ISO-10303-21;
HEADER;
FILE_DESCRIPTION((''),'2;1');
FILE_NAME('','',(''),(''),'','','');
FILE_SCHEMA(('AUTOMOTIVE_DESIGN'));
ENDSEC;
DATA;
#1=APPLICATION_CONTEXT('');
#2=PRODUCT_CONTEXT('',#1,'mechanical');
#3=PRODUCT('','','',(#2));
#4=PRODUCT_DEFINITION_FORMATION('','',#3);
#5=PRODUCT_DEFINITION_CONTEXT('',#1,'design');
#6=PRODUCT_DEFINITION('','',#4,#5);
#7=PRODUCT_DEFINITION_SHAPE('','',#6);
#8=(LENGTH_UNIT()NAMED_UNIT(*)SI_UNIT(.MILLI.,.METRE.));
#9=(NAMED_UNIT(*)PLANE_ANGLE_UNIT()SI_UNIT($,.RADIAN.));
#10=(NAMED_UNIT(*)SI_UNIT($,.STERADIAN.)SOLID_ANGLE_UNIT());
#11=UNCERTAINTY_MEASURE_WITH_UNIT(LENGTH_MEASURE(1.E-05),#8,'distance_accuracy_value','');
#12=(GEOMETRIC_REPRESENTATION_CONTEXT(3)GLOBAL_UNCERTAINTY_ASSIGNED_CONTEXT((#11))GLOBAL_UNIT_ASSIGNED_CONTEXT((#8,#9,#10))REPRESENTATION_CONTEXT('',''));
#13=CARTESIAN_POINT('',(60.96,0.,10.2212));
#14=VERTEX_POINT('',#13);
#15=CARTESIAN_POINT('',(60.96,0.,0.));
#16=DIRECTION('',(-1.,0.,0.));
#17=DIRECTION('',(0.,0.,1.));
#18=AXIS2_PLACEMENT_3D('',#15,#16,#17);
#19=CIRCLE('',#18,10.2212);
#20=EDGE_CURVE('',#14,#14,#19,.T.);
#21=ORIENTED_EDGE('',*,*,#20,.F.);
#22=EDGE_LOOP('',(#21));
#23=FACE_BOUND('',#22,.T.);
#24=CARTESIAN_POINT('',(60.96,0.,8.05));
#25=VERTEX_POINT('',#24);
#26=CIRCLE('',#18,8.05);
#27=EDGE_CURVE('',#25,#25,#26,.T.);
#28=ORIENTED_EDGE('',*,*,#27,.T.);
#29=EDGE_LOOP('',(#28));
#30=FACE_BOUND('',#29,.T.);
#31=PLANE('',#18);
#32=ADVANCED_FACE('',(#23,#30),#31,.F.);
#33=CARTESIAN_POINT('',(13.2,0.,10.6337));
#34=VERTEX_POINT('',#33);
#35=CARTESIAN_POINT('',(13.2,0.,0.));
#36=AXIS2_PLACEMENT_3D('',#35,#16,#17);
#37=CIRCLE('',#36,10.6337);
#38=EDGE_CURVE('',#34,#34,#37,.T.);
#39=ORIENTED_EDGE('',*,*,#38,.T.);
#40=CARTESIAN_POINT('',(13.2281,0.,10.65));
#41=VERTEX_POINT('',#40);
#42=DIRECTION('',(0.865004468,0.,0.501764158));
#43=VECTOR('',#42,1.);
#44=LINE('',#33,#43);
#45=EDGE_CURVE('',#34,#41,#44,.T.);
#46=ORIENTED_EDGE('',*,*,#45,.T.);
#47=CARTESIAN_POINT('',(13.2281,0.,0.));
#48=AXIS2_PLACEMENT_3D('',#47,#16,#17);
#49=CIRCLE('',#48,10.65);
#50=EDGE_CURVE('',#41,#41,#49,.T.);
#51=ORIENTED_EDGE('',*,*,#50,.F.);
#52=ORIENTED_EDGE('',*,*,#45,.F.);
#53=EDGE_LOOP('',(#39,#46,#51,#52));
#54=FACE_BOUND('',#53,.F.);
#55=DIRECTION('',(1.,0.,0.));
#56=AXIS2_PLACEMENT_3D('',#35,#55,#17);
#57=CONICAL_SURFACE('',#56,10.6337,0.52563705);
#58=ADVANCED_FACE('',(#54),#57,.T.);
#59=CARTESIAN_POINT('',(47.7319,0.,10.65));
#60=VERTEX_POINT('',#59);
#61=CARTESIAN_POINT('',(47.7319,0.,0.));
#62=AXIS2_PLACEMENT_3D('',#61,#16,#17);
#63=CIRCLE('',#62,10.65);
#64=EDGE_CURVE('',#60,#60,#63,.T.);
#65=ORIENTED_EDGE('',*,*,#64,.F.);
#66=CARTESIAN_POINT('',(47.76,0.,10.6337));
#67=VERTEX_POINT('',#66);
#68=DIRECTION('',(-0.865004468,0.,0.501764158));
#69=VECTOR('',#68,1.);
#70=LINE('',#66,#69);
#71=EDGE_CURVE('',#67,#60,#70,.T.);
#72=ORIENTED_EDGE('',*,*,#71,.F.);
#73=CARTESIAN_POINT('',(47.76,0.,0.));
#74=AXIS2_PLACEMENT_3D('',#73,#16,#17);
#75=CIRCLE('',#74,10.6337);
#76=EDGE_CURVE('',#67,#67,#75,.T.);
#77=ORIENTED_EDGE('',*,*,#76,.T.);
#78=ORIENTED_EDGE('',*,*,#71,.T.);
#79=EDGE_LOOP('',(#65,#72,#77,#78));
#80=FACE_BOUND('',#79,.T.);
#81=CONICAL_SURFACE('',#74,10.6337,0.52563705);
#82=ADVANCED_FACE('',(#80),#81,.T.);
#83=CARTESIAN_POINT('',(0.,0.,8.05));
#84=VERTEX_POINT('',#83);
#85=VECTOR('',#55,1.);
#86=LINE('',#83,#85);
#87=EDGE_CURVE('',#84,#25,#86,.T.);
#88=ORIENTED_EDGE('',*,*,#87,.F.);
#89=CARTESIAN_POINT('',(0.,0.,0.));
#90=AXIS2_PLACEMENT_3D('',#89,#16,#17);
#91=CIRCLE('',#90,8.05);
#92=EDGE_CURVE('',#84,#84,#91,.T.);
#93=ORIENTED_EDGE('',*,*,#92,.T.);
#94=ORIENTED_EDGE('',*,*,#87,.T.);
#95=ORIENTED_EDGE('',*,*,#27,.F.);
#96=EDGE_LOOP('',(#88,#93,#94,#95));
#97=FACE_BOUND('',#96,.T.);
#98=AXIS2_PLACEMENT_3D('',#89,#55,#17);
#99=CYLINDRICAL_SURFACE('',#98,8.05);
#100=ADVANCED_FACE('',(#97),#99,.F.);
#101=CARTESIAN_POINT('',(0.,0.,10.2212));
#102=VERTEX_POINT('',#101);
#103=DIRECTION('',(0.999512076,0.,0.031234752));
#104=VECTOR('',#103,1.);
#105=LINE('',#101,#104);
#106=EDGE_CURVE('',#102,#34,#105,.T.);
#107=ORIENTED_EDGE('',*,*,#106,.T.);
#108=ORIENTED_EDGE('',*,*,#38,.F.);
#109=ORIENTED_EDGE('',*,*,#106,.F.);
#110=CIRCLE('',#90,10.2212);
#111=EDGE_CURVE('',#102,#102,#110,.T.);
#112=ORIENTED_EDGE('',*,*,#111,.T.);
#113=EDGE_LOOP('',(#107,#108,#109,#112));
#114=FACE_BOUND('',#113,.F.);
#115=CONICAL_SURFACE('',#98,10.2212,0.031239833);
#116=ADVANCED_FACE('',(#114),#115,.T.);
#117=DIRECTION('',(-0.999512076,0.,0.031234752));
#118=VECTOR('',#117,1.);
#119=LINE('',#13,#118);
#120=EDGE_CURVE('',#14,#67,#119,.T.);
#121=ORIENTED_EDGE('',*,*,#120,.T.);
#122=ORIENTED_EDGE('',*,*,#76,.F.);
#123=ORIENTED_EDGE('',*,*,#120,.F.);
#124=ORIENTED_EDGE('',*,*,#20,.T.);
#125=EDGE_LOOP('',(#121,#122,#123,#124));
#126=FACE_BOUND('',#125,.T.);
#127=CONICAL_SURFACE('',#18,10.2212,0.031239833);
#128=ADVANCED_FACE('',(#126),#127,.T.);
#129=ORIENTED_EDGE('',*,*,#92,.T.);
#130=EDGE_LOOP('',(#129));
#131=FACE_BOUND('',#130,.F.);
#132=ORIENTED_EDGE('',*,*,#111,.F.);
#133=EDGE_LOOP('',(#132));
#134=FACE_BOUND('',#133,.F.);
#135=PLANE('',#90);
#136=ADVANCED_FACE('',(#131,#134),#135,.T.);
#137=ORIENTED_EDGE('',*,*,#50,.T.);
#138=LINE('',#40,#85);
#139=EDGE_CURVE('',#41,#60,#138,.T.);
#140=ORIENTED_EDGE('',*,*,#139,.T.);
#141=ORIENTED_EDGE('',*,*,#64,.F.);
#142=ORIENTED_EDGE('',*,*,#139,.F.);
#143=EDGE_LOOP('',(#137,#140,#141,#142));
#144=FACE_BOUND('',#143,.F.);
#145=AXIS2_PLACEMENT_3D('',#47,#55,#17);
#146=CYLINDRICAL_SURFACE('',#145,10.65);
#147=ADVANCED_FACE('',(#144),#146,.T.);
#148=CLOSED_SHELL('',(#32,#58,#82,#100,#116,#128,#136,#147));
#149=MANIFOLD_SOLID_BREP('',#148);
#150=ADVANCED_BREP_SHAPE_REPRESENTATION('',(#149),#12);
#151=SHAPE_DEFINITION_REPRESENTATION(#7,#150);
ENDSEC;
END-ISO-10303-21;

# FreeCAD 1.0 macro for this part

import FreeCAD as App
import Part
import Sketcher
from FreeCAD import Vector
Q = App.Units.Quantity

doc = App.newDocument("Part")
params = doc.addObject("Spreadsheet::Sheet", "Params")
for row, (alias, value) in enumerate([
    ("sketch1_width", "2.4 in"),
    ("revolution_angle", "360 deg"),
], start=1):
    params.set(f"A{row}", alias)
    params.set(f"B{row}", "=" + value)
    params.setAlias(f"B{row}", alias)

body = doc.addObject("PartDesign::Body", "Body")

sketch1 = body.newObject("Sketcher::SketchObject", "Sketch")
sketch1.AttachmentSupport = (doc.getObject("XZ_Plane"), [""])
sketch1.MapMode = "FlatFace"
sketch1.addGeometry(Part.LineSegment(Vector(60.96, 8.05, 0), Vector(0, 8.05, 0)), False)
sketch1.addGeometry(Part.LineSegment(Vector(0, 8.05, 0), Vector(0, 10.2212, 0)), False)
sketch1.addGeometry(Part.LineSegment(Vector(0, 10.2212, 0), Vector(13.2, 10.6337, 0)), False)
sketch1.addGeometry(Part.LineSegment(Vector(13.2, 10.6337, 0), Vector(13.2281, 10.65, 0)), False)
sketch1.addGeometry(Part.LineSegment(Vector(13.2281, 10.65, 0), Vector(47.7319, 10.65, 0)), False)
sketch1.addGeometry(Part.LineSegment(Vector(47.7319, 10.65, 0), Vector(47.76, 10.6337, 0)), False)
sketch1.addGeometry(Part.LineSegment(Vector(47.76, 10.6337, 0), Vector(60.96, 10.2212, 0)), False)
sketch1.addGeometry(Part.LineSegment(Vector(60.96, 10.2212, 0), Vector(60.96, 8.05, 0)), False)
sketch1.addConstraint(Sketcher.Constraint("Coincident", 0, 2, 1, 1))
sketch1.addConstraint(Sketcher.Constraint("Coincident", 1, 2, 2, 1))
sketch1.addConstraint(Sketcher.Constraint("Coincident", 2, 2, 3, 1))
sketch1.addConstraint(Sketcher.Constraint("Coincident", 3, 2, 4, 1))
sketch1.addConstraint(Sketcher.Constraint("Coincident", 4, 2, 5, 1))
sketch1.addConstraint(Sketcher.Constraint("Coincident", 5, 2, 6, 1))
sketch1.addConstraint(Sketcher.Constraint("Coincident", 6, 2, 7, 1))
sketch1.addConstraint(Sketcher.Constraint("Coincident", 7, 2, 0, 1))
sketch1.addConstraint(Sketcher.Constraint("Horizontal", 0))
sketch1.addConstraint(Sketcher.Constraint("Vertical", 1))
sketch1.addConstraint(Sketcher.Constraint("Horizontal", 4))
sketch1.addConstraint(Sketcher.Constraint("Vertical", 7))
sketch1.addConstraint(Sketcher.Constraint("PointOnObject", 0, 2, -2))
sketch1.addConstraint(Sketcher.Constraint("Horizontal", 2, 2, 5, 2))
sketch1.addConstraint(Sketcher.Constraint("Horizontal", 1, 2, 6, 2))
sketch1.addConstraint(Sketcher.Constraint("Equal", 3, 5))
sketch1.addConstraint(Sketcher.Constraint("Equal", 2, 6))
sketch1.addConstraint(Sketcher.Constraint("DistanceX", 0, 2, 0, 1, Q("2.4 in")))
sketch1.addConstraint(Sketcher.Constraint("Angle", 2, Q("1.79 deg")))
sketch1.addConstraint(Sketcher.Constraint("DistanceX", -1, 1, 2, 2, Q("13.2 mm")))
sketch1.addConstraint(Sketcher.Constraint("DistanceY", 0, 2, 3, 2, Q("2.6 mm")))
sketch1.addConstraint(Sketcher.Constraint("DistanceX", 4, 1, 4, 2, Q("34.5038 mm")))
sketch1.addConstraint(Sketcher.Constraint("DistanceY", 1, 1, 1, 2, Q("2.1712 mm")))
sketch1.addConstraint(Sketcher.Constraint("DistanceY", -1, 1, 1, 2, Q("0.4024 in")))
sketch1.setExpression("Constraints[17]", "Params.sketch1_width")
revolution = body.newObject("PartDesign::Revolution", "Revolution")
revolution.Profile = sketch1
revolution.ReferenceAxis = (sketch1, ["H_Axis"])
revolution.setExpression("Angle", "Params.revolution_angle")

doc.recompute()
